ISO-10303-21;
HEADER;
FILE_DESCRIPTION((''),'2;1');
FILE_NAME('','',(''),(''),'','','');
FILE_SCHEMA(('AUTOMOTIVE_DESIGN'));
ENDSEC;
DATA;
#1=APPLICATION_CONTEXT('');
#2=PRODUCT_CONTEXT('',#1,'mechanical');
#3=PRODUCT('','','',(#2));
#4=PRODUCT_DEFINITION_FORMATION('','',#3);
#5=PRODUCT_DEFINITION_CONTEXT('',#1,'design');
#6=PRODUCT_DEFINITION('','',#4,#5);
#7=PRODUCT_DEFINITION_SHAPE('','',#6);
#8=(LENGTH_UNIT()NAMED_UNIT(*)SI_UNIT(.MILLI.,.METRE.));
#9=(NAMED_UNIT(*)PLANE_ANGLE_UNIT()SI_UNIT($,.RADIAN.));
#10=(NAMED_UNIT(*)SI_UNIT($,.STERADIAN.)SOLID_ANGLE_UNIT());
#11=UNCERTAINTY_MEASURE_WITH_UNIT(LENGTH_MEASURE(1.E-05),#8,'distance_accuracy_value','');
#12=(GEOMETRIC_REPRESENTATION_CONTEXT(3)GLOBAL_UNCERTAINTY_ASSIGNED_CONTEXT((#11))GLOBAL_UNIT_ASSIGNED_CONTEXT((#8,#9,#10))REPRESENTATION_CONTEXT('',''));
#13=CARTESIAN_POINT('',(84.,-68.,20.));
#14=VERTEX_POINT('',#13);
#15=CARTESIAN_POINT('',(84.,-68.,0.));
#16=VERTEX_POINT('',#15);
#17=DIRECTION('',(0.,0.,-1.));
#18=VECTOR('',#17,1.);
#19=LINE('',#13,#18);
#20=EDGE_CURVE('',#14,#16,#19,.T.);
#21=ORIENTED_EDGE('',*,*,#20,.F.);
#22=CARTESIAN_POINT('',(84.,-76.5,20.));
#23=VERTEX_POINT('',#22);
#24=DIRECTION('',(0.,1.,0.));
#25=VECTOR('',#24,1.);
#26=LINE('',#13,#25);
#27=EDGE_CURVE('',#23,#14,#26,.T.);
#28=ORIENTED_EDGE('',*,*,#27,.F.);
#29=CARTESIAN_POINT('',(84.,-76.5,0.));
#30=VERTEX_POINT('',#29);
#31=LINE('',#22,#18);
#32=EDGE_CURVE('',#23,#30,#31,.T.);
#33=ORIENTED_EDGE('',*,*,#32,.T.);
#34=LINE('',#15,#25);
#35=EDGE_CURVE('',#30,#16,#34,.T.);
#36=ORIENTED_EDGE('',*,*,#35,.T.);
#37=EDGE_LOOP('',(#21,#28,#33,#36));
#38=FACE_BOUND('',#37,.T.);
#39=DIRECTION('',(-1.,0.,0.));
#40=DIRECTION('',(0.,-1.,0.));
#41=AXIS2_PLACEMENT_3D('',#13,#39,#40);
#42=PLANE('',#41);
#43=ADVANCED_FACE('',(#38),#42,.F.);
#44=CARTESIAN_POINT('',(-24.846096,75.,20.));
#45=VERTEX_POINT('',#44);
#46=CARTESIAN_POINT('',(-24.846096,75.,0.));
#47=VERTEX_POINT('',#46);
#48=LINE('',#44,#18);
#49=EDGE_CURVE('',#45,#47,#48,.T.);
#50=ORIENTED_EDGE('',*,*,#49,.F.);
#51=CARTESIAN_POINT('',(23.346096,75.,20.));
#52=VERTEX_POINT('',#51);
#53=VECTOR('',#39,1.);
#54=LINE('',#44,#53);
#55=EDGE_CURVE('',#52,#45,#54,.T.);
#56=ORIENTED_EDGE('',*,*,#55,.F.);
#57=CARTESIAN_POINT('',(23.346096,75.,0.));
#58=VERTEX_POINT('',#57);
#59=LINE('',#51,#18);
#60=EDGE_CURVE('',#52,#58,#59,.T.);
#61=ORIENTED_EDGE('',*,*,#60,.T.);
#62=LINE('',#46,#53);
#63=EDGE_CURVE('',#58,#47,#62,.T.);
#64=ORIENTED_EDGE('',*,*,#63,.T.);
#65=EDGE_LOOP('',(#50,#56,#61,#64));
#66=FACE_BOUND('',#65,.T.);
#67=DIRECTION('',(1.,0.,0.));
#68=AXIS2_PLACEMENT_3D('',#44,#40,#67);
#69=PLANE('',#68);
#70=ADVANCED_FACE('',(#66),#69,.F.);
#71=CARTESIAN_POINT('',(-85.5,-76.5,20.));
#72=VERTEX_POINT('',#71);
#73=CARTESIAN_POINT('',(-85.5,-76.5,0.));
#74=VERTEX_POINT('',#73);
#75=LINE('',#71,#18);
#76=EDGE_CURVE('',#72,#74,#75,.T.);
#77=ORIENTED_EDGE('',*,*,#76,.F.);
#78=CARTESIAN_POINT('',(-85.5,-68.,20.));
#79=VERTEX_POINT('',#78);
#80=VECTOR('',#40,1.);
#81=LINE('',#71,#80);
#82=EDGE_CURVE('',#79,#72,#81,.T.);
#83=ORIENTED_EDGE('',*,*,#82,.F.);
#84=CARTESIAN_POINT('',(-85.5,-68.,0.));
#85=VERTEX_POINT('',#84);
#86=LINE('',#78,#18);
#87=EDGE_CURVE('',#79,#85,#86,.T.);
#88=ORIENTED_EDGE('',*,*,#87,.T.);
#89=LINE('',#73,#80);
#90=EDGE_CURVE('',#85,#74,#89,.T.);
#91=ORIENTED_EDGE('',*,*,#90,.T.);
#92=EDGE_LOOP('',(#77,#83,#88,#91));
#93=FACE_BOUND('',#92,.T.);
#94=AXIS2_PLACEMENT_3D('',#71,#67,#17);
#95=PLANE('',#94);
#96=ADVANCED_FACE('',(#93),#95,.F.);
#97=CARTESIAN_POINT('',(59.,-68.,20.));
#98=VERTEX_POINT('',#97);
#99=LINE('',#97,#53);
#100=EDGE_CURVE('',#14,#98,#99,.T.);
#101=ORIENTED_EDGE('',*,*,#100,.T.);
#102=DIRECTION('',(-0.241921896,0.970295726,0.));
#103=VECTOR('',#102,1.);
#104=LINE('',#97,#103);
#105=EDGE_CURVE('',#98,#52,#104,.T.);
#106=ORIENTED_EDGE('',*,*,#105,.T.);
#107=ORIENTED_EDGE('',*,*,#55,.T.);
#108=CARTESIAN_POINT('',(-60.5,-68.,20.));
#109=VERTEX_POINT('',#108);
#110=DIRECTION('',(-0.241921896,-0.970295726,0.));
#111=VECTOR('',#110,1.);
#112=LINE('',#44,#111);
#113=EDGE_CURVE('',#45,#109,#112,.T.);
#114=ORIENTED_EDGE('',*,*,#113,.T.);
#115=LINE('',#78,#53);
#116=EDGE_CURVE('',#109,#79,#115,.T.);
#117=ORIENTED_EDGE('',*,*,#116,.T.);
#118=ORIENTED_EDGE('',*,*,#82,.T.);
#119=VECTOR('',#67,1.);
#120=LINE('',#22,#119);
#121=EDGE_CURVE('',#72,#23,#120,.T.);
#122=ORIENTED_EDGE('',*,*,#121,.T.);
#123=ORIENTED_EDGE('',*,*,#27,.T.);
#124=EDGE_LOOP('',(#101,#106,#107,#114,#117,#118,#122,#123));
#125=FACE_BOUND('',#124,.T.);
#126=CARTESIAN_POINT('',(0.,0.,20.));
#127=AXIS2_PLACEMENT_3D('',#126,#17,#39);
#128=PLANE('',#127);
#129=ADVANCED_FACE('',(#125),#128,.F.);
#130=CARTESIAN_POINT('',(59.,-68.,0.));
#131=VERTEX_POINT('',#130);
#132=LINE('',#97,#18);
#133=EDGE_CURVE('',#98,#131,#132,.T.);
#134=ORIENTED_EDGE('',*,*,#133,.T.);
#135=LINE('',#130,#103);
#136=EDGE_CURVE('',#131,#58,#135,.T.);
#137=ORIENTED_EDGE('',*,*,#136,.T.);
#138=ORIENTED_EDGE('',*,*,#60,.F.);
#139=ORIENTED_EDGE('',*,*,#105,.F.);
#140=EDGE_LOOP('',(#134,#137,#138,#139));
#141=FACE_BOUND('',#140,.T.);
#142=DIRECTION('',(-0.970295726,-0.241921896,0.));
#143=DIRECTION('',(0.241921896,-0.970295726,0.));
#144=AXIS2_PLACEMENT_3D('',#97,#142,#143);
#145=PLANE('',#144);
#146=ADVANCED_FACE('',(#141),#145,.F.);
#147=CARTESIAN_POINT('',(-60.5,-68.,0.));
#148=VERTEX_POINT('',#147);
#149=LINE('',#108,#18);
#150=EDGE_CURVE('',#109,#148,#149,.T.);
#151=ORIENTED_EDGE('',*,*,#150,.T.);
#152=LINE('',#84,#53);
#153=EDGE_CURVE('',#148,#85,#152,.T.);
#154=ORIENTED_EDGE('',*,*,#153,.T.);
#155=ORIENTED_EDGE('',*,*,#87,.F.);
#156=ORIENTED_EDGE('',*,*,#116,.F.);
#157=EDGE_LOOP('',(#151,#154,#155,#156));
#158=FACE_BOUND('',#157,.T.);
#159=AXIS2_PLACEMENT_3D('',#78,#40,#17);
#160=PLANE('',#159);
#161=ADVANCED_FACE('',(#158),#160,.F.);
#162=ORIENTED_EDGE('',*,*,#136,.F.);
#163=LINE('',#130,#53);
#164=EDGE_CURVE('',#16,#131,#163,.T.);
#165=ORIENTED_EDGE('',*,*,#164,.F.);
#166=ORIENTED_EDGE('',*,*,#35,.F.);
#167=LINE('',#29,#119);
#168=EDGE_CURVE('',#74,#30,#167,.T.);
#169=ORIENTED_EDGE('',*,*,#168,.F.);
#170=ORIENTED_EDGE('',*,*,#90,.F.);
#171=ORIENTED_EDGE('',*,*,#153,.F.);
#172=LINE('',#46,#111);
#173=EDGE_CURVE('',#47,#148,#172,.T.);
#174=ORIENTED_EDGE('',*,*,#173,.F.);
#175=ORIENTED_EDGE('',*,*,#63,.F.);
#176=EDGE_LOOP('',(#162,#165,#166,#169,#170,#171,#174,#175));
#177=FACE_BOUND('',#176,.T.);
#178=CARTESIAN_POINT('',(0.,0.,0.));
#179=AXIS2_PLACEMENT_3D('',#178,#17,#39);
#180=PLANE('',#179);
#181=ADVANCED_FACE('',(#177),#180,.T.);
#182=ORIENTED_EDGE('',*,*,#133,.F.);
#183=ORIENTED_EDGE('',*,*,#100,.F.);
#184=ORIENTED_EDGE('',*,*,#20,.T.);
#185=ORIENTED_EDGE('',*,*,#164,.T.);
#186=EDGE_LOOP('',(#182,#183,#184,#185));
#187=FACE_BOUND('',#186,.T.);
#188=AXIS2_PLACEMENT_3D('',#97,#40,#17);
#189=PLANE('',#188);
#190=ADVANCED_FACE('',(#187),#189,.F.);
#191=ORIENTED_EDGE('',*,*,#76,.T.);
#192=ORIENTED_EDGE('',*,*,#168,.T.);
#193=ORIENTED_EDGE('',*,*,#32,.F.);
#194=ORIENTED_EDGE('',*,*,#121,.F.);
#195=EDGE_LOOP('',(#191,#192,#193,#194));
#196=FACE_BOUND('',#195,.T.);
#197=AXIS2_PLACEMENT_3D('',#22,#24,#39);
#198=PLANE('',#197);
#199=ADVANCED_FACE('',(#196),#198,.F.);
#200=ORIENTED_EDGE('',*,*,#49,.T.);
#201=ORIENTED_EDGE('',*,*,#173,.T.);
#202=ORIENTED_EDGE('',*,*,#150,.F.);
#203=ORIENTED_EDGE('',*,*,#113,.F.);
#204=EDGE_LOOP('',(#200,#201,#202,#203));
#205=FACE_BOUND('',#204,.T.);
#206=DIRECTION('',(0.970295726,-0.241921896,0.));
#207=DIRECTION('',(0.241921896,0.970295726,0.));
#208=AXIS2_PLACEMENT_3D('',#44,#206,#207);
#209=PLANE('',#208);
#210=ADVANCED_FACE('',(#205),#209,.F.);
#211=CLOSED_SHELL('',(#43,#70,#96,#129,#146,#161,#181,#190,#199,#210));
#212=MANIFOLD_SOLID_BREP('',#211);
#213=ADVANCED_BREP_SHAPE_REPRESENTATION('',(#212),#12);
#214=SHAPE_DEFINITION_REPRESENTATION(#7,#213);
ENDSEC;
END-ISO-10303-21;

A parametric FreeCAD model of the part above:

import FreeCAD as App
import Part
import Sketcher
from FreeCAD import Vector
Q = App.Units.Quantity

doc = App.newDocument("Part")
params = doc.addObject("Spreadsheet::Sheet", "Params")
for row, (alias, value) in enumerate([
    ("sketch1_width", "25 mm"),
    ("sketch1_width2", "169.5 mm"),
    ("sketch1_height", "8.5 mm"),
    ("pad1_length", "20 mm"),
], start=1):
    params.set(f"A{row}", alias)
    params.set(f"B{row}", "=" + value)
    params.setAlias(f"B{row}", alias)

body = doc.addObject("PartDesign::Body", "Body")

sketch1 = doc.addObject("Sketcher::SketchObject", "Sketch")
body.addObject(sketch1)
sketch1.AttachmentSupport = (doc.XY_Plane, [""])
sketch1.MapMode = "FlatFace"
sketch1.addGeometry([
    Part.LineSegment(Vector(-60, -68, 0), Vector(-86, -68, 0)),
    Part.LineSegment(Vector(-86, -68, 0), Vector(-86, -76, 0)),
    Part.LineSegment(Vector(-86, -76, 0), Vector(84, -76, 0)),
    Part.LineSegment(Vector(84, -76, 0), Vector(84, -68, 0)),
    Part.LineSegment(Vector(84, -68, 0), Vector(59, -68, 0)),
    Part.LineSegment(Vector(59, -68, 0), Vector(23, 75, 0)),
    Part.LineSegment(Vector(23, 75, 0), Vector(-25, 75, 0)),
    Part.LineSegment(Vector(-25, 75, 0), Vector(-60, -68, 0)),
], False)
sketch1.addConstraint([
    Sketcher.Constraint("Coincident", 0, 2, 1, 1),
    Sketcher.Constraint("Coincident", 1, 2, 2, 1),
    Sketcher.Constraint("Coincident", 2, 2, 3, 1),
    Sketcher.Constraint("Coincident", 3, 2, 4, 1),
    Sketcher.Constraint("Coincident", 4, 2, 5, 1),
    Sketcher.Constraint("Coincident", 5, 2, 6, 1),
    Sketcher.Constraint("Coincident", 6, 2, 7, 1),
    Sketcher.Constraint("Coincident", 7, 2, 0, 1),
    Sketcher.Constraint("Horizontal", 0),
    Sketcher.Constraint("Vertical", 1),
    Sketcher.Constraint("Horizontal", 2),
    Sketcher.Constraint("Vertical", 3),
    Sketcher.Constraint("Horizontal", 4),
    Sketcher.Constraint("Horizontal", 6),
    Sketcher.Constraint("Horizontal", 0, 2, 3, 2),
    Sketcher.Constraint("Equal", 0, 4),
    Sketcher.Constraint("Equal", 5, 7),
    Sketcher.Constraint("DistanceX", 0, 2, 0, 1, Q("25 mm")),
    Sketcher.Constraint("Angle", 5, Q("104 deg")),
    Sketcher.Constraint("DistanceX", 2, 1, 2, 2, Q("169.5 mm")),
    Sketcher.Constraint("DistanceY", 1, 2, 1, 1, Q("8.5 mm")),
    Sketcher.Constraint("DistanceY", 0, 2, -1, 1, Q("68 mm")),
    Sketcher.Constraint("DistanceX", -1, 1, 2, 2, Q("84 mm")),
    Sketcher.Constraint("DistanceY", -1, 1, 5, 2, Q("75 mm")),
])
sketch1.setExpression("Constraints[17]", "Params.sketch1_width")
sketch1.setExpression("Constraints[19]", "Params.sketch1_width2")
sketch1.setExpression("Constraints[20]", "Params.sketch1_height")
pad1 = doc.addObject("PartDesign::Pad", "Pad")
body.addObject(pad1)
pad1.Profile = sketch1
pad1.setExpression("Length", "Params.pad1_length")

doc.recompute()
